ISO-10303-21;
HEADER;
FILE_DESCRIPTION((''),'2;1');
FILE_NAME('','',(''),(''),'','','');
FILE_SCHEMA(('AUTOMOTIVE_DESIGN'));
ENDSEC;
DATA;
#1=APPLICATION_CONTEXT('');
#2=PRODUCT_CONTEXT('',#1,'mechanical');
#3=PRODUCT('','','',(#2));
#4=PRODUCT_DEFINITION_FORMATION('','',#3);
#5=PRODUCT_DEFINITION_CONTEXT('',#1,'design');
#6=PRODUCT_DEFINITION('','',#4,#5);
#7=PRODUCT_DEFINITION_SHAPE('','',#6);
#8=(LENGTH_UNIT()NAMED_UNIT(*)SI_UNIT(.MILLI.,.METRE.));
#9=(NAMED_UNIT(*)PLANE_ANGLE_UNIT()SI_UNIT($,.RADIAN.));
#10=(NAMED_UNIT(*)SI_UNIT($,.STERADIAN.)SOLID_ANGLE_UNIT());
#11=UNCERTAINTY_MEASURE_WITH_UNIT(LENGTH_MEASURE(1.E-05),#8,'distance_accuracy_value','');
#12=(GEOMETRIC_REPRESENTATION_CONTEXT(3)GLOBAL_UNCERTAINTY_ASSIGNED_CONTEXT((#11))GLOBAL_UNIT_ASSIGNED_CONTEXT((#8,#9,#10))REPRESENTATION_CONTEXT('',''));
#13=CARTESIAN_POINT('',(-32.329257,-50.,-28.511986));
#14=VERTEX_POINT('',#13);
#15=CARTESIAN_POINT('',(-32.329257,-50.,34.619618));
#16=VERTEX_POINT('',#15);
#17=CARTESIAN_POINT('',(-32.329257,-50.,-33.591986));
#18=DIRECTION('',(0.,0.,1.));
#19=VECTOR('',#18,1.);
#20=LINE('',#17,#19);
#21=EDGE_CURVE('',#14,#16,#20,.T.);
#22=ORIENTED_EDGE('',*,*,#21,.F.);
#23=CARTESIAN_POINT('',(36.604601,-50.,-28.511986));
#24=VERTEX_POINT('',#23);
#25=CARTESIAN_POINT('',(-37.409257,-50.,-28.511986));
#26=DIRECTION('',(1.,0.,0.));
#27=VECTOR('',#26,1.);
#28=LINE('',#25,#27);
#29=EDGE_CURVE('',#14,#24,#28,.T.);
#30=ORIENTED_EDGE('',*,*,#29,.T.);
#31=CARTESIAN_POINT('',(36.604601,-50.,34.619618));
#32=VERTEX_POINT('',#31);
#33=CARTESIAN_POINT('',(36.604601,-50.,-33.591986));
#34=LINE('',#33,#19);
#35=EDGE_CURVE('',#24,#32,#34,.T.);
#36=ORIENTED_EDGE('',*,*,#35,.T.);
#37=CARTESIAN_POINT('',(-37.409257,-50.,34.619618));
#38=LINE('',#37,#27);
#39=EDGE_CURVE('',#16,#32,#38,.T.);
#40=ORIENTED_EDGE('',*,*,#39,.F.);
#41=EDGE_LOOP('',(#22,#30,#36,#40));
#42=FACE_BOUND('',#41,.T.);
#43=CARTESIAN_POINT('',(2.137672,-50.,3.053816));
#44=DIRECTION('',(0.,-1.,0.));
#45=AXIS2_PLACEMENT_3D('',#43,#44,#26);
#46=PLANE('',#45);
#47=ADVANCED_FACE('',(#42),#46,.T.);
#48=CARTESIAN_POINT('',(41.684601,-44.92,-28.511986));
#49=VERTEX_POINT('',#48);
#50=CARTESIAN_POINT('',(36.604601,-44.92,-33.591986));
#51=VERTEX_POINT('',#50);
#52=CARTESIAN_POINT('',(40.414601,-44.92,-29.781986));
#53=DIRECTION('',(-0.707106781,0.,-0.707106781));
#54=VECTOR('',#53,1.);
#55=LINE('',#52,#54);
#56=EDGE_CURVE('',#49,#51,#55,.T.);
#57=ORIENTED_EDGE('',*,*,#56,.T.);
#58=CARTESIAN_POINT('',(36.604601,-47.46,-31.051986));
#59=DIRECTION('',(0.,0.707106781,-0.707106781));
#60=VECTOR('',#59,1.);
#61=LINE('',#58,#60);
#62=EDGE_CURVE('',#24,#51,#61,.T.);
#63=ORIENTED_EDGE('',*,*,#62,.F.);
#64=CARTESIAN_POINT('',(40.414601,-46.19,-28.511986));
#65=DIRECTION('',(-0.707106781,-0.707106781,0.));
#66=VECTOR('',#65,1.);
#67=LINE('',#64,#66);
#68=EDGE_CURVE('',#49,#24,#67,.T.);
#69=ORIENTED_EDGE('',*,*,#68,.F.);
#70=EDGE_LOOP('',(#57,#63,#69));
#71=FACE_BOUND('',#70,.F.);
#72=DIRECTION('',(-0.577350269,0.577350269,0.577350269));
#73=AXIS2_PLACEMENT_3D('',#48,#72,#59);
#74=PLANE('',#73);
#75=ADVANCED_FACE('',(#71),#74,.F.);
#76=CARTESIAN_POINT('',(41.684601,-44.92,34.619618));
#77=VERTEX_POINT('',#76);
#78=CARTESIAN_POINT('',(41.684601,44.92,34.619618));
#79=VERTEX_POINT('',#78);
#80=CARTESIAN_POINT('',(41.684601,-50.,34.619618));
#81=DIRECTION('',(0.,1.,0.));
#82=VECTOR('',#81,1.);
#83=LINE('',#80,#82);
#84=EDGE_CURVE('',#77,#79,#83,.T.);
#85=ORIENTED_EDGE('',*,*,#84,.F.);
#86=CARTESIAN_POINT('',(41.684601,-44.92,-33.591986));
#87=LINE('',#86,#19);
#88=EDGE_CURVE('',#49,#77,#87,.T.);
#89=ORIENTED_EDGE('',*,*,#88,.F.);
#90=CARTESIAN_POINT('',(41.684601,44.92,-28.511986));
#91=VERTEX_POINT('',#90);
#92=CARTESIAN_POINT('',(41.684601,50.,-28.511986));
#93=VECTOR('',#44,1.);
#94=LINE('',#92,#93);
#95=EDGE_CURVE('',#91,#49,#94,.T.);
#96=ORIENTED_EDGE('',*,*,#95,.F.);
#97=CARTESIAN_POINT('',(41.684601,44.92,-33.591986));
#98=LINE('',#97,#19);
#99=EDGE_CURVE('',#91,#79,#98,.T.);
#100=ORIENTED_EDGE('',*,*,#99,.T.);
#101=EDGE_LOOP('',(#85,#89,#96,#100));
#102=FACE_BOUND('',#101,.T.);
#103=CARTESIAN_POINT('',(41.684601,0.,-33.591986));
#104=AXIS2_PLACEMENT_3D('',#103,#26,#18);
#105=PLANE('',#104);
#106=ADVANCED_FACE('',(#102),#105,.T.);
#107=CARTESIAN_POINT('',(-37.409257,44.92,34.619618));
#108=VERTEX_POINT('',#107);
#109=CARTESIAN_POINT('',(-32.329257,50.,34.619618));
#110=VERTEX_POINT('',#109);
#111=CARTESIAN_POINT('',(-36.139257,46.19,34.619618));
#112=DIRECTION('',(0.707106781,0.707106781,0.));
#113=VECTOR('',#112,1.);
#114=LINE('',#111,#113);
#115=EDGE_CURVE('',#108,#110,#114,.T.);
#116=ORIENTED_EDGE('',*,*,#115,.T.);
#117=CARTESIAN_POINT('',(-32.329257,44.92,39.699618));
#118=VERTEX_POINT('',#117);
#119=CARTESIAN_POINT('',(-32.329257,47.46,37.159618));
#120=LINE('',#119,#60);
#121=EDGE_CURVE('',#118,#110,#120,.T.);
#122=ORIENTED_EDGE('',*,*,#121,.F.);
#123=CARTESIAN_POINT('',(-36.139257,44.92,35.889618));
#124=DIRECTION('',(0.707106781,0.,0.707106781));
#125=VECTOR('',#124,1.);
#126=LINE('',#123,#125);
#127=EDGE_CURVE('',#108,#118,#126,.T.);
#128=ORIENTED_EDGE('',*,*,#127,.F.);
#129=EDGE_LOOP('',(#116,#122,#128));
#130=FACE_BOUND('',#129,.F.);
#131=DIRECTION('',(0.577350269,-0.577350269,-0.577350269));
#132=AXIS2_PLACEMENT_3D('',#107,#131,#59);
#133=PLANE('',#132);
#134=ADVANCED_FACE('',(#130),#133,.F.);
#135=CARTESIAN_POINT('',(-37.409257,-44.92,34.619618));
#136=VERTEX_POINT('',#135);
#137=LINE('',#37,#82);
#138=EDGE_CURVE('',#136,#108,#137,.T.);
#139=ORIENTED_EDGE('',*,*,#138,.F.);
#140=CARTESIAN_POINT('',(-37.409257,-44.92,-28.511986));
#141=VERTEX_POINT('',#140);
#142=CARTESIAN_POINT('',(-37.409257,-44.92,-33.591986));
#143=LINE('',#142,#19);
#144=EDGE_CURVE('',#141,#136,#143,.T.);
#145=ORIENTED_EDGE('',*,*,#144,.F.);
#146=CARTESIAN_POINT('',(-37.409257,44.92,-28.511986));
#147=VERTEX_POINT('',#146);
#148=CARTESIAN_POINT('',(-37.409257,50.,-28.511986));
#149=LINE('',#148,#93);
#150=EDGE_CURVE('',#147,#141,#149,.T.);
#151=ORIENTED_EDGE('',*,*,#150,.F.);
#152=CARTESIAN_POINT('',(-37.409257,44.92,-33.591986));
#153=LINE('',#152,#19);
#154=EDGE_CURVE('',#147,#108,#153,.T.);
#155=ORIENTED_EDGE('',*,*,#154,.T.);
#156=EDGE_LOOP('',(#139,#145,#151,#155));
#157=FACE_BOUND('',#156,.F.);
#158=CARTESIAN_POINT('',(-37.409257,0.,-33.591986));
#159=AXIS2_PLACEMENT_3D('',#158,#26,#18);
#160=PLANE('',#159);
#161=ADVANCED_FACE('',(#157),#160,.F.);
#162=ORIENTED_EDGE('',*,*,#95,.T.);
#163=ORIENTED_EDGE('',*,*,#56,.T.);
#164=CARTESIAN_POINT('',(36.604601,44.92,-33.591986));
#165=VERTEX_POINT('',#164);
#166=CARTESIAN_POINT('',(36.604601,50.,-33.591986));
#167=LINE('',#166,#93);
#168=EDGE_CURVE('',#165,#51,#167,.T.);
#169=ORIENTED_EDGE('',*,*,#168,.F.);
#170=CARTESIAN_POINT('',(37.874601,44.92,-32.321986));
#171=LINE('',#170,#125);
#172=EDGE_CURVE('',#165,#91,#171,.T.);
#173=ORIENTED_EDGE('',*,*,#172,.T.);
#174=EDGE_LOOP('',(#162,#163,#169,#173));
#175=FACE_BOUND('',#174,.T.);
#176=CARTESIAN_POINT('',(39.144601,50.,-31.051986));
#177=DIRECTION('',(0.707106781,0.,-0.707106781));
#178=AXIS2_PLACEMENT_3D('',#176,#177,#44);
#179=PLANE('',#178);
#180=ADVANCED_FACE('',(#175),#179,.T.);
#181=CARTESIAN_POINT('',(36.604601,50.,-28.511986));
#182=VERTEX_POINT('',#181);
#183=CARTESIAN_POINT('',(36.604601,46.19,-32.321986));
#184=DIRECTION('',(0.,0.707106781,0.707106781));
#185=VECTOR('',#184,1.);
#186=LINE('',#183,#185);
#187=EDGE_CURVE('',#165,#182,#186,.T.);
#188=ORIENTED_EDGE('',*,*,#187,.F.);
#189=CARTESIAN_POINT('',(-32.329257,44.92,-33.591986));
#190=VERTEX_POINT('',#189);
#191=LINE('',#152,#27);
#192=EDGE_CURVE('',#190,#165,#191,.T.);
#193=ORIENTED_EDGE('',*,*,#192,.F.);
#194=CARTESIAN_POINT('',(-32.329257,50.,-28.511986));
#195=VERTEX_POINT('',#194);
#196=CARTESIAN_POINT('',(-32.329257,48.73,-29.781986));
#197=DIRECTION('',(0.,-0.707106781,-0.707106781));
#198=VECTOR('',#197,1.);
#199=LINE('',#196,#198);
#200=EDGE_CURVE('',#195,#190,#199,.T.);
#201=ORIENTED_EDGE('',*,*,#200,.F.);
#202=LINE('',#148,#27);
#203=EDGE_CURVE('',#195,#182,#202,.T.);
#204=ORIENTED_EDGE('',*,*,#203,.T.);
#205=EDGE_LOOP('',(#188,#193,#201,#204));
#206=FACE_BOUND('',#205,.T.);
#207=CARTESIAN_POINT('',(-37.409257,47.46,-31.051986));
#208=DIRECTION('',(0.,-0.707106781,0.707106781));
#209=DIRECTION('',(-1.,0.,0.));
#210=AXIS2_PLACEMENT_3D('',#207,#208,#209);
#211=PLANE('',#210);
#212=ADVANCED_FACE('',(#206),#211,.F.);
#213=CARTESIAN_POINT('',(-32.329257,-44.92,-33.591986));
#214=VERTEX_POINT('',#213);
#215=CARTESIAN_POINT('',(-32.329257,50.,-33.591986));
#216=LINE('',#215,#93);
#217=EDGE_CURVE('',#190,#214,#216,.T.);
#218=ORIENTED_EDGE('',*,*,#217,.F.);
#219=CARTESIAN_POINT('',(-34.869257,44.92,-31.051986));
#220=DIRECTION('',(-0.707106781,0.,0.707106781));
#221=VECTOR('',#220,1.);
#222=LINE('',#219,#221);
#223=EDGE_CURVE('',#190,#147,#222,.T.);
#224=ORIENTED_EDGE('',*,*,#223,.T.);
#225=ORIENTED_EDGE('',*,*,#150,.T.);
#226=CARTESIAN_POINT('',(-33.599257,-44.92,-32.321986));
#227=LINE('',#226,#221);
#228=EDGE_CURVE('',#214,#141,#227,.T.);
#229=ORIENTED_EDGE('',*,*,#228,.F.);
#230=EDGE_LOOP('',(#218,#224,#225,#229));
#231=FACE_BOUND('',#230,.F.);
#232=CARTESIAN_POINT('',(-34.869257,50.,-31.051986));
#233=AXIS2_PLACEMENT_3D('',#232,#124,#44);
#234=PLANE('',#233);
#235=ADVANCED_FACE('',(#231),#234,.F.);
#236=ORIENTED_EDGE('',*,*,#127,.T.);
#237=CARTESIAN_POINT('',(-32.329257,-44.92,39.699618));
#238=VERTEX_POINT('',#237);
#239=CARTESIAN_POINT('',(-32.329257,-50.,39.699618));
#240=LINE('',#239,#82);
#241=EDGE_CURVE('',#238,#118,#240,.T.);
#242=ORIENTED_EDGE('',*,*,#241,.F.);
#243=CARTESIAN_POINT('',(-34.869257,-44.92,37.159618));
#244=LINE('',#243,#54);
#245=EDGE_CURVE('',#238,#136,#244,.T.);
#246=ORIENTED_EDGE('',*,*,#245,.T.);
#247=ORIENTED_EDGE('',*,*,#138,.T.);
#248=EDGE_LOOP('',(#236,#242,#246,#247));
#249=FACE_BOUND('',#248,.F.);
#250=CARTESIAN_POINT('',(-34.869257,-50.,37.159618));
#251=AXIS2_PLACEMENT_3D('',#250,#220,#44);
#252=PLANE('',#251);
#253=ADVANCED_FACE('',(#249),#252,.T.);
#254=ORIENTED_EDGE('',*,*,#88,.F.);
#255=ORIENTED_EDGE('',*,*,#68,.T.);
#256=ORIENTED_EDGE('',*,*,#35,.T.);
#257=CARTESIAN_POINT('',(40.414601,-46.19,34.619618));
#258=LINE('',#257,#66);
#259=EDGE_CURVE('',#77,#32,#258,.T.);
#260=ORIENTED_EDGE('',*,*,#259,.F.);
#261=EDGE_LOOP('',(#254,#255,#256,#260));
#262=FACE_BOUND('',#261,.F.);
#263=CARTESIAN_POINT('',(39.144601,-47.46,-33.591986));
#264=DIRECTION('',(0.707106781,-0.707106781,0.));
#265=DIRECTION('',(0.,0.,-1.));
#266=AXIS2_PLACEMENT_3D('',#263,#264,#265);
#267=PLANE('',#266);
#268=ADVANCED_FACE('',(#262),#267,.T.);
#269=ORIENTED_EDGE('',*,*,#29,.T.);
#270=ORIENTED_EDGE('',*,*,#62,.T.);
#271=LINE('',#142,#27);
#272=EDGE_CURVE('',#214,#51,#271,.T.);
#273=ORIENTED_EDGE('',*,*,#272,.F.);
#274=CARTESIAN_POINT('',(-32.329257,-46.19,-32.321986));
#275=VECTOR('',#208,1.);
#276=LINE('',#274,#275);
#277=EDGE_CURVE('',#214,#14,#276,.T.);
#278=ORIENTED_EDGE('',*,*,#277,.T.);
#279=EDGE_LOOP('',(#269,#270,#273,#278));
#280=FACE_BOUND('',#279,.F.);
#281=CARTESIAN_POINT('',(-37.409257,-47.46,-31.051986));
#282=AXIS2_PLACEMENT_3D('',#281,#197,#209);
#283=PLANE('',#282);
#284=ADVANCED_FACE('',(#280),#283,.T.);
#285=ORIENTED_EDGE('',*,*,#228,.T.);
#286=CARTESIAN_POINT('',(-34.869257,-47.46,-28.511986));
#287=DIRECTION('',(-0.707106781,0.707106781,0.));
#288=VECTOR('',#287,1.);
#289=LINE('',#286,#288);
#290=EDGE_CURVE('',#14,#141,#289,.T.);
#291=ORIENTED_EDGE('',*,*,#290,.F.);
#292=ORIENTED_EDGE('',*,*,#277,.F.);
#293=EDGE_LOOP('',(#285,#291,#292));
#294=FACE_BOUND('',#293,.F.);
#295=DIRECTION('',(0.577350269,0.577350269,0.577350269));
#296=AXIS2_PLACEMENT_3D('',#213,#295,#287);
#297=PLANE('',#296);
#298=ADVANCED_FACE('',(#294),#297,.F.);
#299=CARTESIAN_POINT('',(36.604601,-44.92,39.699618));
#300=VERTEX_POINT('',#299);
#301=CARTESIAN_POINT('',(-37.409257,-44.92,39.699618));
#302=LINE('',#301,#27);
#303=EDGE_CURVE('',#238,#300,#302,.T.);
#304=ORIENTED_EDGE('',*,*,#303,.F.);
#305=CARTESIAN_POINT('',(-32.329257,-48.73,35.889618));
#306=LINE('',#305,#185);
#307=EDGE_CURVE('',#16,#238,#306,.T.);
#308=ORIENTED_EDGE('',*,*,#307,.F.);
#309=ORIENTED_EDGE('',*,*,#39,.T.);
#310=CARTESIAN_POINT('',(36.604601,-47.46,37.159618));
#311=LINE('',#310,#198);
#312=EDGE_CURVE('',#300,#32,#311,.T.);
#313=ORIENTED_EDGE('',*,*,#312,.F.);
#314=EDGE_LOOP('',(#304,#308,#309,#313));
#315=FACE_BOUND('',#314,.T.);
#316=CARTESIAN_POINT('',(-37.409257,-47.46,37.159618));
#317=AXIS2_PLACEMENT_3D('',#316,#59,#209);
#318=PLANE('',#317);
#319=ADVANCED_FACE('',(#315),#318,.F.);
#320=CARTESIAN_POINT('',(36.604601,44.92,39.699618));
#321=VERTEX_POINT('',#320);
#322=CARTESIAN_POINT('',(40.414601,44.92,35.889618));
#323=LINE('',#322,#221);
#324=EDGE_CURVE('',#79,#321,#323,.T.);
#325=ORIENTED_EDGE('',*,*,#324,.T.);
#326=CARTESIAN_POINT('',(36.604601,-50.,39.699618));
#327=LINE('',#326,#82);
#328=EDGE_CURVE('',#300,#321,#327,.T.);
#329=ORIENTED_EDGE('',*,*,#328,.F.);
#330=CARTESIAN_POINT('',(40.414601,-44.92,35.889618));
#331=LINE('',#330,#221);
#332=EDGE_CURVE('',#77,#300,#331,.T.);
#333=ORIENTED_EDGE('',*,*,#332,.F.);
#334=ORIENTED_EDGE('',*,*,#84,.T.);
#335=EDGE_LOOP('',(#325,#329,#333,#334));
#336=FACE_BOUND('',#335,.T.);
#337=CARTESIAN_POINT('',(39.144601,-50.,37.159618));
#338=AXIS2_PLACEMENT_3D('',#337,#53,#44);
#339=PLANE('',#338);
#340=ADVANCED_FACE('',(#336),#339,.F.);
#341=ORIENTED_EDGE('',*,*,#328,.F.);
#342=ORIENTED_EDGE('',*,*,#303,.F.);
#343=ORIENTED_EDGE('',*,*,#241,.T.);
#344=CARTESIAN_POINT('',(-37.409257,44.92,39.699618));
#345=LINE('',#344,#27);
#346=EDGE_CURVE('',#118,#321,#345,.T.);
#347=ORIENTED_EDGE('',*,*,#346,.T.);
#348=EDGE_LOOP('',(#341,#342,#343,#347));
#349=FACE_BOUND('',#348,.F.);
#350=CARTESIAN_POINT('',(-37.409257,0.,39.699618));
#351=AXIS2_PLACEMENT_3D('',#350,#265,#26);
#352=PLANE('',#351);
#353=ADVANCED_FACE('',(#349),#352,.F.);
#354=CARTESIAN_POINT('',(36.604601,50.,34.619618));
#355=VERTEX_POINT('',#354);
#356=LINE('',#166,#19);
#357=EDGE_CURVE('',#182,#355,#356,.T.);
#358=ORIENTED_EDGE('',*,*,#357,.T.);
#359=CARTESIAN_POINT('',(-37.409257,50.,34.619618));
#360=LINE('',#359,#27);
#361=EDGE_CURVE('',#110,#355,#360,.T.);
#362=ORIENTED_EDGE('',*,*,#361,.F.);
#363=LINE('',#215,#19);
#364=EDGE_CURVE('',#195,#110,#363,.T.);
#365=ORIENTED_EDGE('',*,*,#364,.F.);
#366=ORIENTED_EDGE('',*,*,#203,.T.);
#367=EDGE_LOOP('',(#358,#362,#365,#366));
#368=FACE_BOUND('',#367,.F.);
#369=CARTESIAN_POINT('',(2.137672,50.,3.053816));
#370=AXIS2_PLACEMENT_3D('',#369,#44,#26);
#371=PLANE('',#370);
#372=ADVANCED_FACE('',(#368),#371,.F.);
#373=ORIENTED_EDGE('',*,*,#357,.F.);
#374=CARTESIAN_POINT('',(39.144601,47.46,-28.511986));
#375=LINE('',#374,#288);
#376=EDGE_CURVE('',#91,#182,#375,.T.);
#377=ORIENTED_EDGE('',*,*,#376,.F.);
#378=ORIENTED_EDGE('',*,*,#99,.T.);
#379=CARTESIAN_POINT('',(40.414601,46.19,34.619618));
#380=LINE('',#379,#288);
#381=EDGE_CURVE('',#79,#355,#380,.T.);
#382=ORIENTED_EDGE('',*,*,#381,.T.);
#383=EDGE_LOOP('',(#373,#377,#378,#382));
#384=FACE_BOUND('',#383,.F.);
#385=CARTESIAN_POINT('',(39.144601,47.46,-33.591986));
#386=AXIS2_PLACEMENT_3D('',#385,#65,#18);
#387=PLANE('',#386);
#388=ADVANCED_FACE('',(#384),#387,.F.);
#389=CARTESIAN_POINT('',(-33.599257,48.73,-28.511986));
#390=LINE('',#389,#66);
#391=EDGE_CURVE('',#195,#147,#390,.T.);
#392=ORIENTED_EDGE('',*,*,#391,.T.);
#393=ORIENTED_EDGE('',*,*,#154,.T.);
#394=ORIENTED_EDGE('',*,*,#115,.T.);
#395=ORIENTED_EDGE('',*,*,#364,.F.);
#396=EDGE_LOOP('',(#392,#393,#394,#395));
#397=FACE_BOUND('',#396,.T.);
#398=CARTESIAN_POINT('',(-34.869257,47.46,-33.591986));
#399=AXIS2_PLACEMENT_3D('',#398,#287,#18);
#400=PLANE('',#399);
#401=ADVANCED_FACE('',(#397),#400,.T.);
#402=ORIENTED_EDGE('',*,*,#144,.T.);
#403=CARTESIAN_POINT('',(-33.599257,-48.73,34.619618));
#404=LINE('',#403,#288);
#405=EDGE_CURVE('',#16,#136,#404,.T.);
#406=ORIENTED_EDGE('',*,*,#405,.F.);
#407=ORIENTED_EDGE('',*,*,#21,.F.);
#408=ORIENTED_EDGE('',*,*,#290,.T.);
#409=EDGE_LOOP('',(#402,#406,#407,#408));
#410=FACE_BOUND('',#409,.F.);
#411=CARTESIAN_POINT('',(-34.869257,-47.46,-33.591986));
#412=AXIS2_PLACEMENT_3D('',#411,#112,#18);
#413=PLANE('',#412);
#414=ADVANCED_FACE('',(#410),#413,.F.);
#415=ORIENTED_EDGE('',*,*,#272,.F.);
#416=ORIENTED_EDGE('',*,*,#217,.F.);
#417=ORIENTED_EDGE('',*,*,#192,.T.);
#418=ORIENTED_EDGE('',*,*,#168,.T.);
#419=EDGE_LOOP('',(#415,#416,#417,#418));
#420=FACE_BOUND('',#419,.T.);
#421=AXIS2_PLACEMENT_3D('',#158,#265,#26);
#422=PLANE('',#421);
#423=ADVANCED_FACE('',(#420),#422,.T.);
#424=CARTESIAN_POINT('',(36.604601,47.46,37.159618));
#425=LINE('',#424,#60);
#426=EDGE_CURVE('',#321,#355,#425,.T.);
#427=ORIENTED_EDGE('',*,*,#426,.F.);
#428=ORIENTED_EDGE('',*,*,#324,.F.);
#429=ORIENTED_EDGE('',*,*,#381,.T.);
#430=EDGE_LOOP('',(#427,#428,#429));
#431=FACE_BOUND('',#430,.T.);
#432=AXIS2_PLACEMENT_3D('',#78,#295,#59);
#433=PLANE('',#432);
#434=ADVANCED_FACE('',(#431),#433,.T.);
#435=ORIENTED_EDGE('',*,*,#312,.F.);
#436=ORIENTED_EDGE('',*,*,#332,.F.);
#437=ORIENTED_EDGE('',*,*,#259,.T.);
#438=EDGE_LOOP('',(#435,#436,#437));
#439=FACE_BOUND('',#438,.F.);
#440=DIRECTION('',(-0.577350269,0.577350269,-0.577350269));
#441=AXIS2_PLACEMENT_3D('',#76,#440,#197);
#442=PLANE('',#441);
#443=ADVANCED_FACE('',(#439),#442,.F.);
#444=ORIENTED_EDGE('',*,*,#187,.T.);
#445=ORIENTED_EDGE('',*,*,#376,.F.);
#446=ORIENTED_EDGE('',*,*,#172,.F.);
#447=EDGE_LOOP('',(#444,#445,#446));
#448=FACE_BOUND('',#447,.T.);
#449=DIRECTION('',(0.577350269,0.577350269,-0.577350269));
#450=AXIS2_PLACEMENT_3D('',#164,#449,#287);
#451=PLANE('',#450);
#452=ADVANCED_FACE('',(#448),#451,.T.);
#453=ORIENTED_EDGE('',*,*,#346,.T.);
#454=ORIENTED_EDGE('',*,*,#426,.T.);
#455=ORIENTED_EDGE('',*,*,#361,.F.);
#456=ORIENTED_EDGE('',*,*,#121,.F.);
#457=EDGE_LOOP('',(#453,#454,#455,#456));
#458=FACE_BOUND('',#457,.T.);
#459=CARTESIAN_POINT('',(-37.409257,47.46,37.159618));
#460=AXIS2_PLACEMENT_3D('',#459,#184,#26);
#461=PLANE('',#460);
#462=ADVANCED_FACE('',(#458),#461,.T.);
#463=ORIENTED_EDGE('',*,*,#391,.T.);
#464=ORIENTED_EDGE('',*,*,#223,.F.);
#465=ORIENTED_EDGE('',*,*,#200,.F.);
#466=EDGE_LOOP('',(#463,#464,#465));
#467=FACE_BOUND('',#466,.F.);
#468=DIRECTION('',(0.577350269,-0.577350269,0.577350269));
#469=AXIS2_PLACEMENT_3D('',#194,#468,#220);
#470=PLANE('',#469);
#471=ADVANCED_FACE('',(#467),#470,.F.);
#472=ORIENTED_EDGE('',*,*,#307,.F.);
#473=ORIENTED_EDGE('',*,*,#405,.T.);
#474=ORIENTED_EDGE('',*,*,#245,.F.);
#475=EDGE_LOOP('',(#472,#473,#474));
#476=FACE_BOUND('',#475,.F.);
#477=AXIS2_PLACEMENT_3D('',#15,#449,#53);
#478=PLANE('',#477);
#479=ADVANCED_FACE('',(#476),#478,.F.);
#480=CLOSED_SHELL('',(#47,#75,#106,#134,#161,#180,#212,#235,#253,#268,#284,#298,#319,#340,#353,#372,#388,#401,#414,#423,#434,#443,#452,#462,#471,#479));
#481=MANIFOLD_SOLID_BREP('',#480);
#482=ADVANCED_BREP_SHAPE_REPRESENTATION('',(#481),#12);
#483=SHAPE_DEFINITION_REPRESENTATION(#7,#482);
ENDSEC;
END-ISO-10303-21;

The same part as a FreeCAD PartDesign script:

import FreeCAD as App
import Part
import Sketcher

V = App.Vector


def add_polygon(sketch, points):
    """Adds a closed chain of lines whose ends are joined by coincident constraints."""
    first, n = sketch.GeometryCount, len(points)
    for a, b in zip(points, points[1:] + points[:1]):
        sketch.addGeometry(Part.LineSegment(App.Vector(*a, 0), App.Vector(*b, 0)), False)
    for i in range(n):
        sketch.addConstraint(Sketcher.Constraint("Coincident", first + i, 2, first + (i + 1) % n, 1))

doc = App.newDocument("Part")
body = doc.addObject("PartDesign::Body", "Body")

sketch1 = body.newObject("Sketcher::SketchObject", "Sketch")
sketch1.AttachmentSupport = (doc.getObject("XZ_Plane"), [""])
sketch1.MapMode = "FlatFace"
add_polygon(sketch1, [(-37, 40), (-37, -34), (42, -34), (42, 40)])
sketch1.addConstraint([
    Sketcher.Constraint("Vertical", 0),
    Sketcher.Constraint("Horizontal", 1),
    Sketcher.Constraint("Vertical", 2),
    Sketcher.Constraint("Horizontal", 3),
    Sketcher.Constraint("DistanceX", -1, 1, 1, 2, 41.684601),
    Sketcher.Constraint("DistanceX", 1, 1, 1, 2, 79.093858),
    Sketcher.Constraint("DistanceY", 0, 2, 0, 1, 73.291604),
    Sketcher.Constraint("DistanceY", 0, 2, -1, 1, 33.591986),
])
pad1 = body.newObject("PartDesign::Pad", "Pad")
pad1.Profile = sketch1
pad1.Length = 100
pad1.Midplane = True
doc.recompute()

chamfer = body.newObject("PartDesign::Chamfer", "Chamfer")
chamfer.Base = (pad1, ["Edge1"])
chamfer.UseAllEdges = True
chamfer.Size = 5.08

doc.recompute()
